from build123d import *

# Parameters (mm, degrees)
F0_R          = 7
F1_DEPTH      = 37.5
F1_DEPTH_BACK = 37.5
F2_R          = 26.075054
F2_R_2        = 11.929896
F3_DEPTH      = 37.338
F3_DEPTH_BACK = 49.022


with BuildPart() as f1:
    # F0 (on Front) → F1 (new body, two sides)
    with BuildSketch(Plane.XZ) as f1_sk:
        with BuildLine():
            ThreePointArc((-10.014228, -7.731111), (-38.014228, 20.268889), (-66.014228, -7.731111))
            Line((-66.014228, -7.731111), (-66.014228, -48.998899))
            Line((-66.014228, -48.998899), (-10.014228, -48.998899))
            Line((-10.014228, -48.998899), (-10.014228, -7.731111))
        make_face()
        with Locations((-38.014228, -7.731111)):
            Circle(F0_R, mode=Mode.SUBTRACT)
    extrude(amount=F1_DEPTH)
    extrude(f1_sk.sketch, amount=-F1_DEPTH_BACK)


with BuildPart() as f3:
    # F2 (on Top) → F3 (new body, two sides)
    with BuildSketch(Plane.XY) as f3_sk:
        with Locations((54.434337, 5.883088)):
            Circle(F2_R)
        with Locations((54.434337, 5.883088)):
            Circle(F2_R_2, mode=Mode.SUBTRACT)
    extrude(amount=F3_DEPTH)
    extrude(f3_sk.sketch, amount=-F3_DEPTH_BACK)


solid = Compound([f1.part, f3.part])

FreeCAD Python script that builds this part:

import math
import FreeCAD as App
import Part
import Sketcher
from FreeCAD import Vector

doc = App.newDocument("Part")
body = doc.addObject("PartDesign::Body", "Body")

# Sketch on XZ plane
sketch1 = body.newObject("Sketcher::SketchObject", "Sketch")
sketch1.AttachmentSupport = (doc.getObject("XZ_Plane"), [""])
sketch1.MapMode = "FlatFace"
sketch1.addGeometry([
    Part.ArcOfCircle(Part.Circle(Vector(-38, -8, 0), Vector(0, 0, 1), 28), math.radians(0), math.radians(180)),  # 0
    Part.LineSegment(Vector(-66, -8, 0), Vector(-66, -49, 0)),  # 1
    Part.LineSegment(Vector(-66, -49, 0), Vector(-10, -49, 0)),  # 2
    Part.LineSegment(Vector(-10, -49, 0), Vector(-10, -8, 0)),  # 3
    Part.Circle(Vector(-38, -8, 0), Vector(0, 0, 1), 7),  # 4
], False)
sketch1.addConstraint([
    Sketcher.Constraint("Tangent", 0, 2, 1, 1),
    Sketcher.Constraint("Coincident", 1, 2, 2, 1),
    Sketcher.Constraint("Coincident", 2, 2, 3, 1),
    Sketcher.Constraint("Tangent", 3, 2, 0, 1),
    Sketcher.Constraint("Vertical", 1),
    Sketcher.Constraint("Horizontal", 2),
    Sketcher.Constraint("Vertical", 3),
    Sketcher.Constraint("Coincident", 4, 3, 0, 3),
    Sketcher.Constraint("Diameter", 4, 14.0),
    Sketcher.Constraint("Radius", 0, 28.0),
    Sketcher.Constraint("DistanceY", 1, 2, 1, 1, 41.267788),
    Sketcher.Constraint("DistanceY", 1, 2, -1, 1, 48.998899),
    Sketcher.Constraint("DistanceX", 0, 3, -1, 1, 38.014228),
])
pad1 = body.newObject("PartDesign::Pad", "Pad")
pad1.Profile = sketch1
pad1.Type = "TwoLengths"
pad1.Length = 37.5
pad1.Length2 = 37.5
body2 = doc.addObject("PartDesign::Body", "Body001")

# Sketch on XY plane
sketch2 = body2.newObject("Sketcher::SketchObject", "Sketch001")
sketch2.AttachmentSupport = (doc.getObject("XY_Plane001"), [""])
sketch2.MapMode = "FlatFace"
sketch2.addGeometry([
    Part.Circle(Vector(54, 6, 0), Vector(0, 0, 1), 26),
    Part.Circle(Vector(54, 6, 0), Vector(0, 0, 1), 12),
], False)
sketch2.addConstraint([
    Sketcher.Constraint("Coincident", 1, 3, 0, 3),
    Sketcher.Constraint("Diameter", 0, 52.150108),
    Sketcher.Constraint("Diameter", 1, 23.859792),
    Sketcher.Constraint("DistanceX", -1, 1, 0, 3, 54.434337),
    Sketcher.Constraint("DistanceY", -1, 1, 0, 3, 5.883088),
])
pad2 = body2.newObject("PartDesign::Pad", "Pad001")
pad2.Profile = sketch2
pad2.Type = "TwoLengths"
pad2.Length = 37.338
pad2.Length2 = 49.022

doc.recompute()
